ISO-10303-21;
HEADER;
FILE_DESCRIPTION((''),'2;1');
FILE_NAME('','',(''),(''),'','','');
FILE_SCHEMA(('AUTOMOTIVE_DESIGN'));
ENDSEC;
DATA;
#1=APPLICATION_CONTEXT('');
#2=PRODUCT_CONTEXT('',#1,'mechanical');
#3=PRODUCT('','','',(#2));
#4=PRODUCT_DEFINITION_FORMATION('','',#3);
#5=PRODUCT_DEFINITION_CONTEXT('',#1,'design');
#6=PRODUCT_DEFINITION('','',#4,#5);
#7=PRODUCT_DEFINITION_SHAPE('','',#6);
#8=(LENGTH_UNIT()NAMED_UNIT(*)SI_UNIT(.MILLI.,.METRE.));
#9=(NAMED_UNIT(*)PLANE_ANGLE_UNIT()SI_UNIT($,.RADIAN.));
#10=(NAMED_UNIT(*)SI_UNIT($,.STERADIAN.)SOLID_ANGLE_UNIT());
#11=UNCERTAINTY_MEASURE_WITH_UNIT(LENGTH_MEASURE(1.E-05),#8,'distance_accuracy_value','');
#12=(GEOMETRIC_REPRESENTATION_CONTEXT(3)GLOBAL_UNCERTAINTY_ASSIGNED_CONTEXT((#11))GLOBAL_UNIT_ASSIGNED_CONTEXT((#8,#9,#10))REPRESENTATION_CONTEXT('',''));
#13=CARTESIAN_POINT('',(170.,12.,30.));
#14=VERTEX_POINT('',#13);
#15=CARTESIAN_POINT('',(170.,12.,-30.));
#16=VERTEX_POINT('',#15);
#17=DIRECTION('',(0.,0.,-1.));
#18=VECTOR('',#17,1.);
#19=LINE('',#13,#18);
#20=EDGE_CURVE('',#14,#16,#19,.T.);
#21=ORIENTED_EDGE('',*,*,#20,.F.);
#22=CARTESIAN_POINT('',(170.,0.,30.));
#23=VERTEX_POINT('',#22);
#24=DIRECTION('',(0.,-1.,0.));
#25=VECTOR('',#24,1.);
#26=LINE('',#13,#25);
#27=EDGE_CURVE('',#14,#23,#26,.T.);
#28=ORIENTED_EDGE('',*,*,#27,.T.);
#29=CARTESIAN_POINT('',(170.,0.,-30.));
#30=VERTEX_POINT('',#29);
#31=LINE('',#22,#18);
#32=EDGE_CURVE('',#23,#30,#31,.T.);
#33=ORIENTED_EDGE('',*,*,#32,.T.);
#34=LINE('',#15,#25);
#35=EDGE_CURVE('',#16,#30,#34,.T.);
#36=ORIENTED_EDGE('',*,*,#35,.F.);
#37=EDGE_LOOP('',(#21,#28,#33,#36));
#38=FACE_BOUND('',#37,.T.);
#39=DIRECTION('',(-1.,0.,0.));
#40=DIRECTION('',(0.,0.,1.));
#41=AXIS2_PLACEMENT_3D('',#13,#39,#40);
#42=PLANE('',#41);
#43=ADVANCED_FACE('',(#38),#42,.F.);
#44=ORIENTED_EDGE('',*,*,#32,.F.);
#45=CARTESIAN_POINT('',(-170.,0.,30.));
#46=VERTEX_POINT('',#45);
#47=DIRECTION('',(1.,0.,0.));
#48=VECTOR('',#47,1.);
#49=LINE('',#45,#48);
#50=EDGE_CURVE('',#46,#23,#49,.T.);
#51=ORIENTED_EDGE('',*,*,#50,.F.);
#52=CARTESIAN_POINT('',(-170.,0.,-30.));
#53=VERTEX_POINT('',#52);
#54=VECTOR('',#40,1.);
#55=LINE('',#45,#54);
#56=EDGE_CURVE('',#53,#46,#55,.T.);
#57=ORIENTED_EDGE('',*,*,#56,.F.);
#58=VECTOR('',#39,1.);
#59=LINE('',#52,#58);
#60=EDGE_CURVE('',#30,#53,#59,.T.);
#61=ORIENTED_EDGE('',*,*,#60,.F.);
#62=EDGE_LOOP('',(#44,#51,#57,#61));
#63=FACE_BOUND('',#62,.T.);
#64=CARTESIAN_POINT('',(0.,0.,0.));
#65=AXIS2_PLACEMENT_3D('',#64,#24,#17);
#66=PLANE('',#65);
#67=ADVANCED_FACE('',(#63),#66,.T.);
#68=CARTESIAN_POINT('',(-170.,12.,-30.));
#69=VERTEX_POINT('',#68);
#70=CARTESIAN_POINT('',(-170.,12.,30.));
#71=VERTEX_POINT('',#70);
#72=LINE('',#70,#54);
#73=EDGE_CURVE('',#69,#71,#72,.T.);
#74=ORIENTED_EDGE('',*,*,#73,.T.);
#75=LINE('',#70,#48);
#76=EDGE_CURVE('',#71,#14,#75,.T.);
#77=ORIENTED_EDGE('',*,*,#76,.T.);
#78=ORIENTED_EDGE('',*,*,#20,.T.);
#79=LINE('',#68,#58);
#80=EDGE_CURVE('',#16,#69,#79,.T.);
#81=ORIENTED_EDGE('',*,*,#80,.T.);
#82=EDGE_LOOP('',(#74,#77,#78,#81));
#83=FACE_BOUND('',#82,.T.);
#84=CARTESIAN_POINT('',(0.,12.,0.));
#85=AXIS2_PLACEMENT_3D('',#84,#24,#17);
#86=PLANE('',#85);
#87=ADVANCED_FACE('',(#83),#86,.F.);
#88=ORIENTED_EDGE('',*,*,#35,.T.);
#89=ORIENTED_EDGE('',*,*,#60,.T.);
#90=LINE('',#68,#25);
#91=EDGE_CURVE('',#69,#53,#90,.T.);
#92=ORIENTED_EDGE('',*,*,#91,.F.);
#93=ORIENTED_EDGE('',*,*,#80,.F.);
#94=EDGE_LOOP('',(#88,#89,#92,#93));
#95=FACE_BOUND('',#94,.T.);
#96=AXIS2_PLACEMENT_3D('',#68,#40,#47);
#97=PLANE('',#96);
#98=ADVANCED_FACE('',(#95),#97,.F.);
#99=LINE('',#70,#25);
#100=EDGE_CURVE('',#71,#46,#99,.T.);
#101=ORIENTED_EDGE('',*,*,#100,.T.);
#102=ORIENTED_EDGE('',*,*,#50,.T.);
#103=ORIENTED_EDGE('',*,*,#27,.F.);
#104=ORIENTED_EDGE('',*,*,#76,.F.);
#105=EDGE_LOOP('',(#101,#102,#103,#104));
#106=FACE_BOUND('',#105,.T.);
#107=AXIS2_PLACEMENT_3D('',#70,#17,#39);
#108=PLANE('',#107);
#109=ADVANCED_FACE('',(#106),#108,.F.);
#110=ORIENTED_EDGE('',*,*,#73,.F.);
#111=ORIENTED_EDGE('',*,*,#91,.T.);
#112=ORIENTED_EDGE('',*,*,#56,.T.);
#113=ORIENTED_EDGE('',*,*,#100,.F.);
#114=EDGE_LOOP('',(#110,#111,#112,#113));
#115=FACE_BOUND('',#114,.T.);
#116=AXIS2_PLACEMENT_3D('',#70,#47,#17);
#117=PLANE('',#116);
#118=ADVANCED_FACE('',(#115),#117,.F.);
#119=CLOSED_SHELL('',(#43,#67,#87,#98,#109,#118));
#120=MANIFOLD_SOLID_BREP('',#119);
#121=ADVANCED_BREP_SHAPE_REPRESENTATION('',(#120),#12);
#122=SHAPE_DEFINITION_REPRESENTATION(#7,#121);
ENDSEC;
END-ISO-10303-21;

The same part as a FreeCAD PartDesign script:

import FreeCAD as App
import Part
import Sketcher


def add_polygon(sketch, points):
    """Adds a closed chain of lines whose ends are joined by coincident constraints."""
    first, n = sketch.GeometryCount, len(points)
    for a, b in zip(points, points[1:] + points[:1]):
        sketch.addGeometry(Part.LineSegment(App.Vector(*a, 0), App.Vector(*b, 0)), False)
    for i in range(n):
        sketch.addConstraint(Sketcher.Constraint("Coincident", first + i, 2, first + (i + 1) % n, 1))

doc = App.newDocument("Part")
body = doc.addObject("PartDesign::Body", "Body")

# Sketch on XZ plane
sketch1 = body.newObject("Sketcher::SketchObject", "Sketch")
sketch1.AttachmentSupport = (doc.getObject("XZ_Plane"), [""])
sketch1.MapMode = "FlatFace"
add_polygon(sketch1, [(-170, -30), (-170, 30), (170, 30), (170, -30)])  # lines 0-3
sketch1.addConstraint([
    Sketcher.Constraint("Vertical", 0),
    Sketcher.Constraint("Horizontal", 1),
    Sketcher.Constraint("Vertical", 2),
    Sketcher.Constraint("Horizontal", 3),
    Sketcher.Constraint("Symmetric", 0, 2, 2, 2, -1, 1),
    Sketcher.Constraint("DistanceX", 1, 1, 1, 2, 340.0),
    Sketcher.Constraint("DistanceY", 0, 1, 0, 2, 60.0),
])
pad1 = body.newObject("PartDesign::Pad", "Pad")
pad1.Profile = sketch1
pad1.Length = 12
pad1.Reversed = True

doc.recompute()
